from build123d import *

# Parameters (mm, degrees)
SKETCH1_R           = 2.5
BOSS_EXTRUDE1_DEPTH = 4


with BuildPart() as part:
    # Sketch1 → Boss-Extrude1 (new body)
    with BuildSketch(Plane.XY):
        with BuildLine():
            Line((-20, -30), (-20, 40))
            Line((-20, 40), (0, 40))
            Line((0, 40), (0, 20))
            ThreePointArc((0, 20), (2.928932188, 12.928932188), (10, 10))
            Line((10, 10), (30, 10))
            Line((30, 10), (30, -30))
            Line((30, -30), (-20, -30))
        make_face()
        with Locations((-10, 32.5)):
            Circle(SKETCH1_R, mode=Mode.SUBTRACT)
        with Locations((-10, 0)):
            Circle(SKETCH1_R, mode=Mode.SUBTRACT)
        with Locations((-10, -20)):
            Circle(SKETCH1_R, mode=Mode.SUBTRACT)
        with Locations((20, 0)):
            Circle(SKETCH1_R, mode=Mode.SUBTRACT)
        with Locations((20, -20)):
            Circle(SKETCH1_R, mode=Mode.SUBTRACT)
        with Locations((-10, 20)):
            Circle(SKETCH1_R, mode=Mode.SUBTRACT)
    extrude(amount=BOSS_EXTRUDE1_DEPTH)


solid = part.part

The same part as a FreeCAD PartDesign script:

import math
import FreeCAD as App
import Part
import Sketcher
from FreeCAD import Vector

doc = App.newDocument("Part")
body = doc.addObject("PartDesign::Body", "Body")

sketch1 = body.newObject("Sketcher::SketchObject", "Sketch")
sketch1.AttachmentSupport = (doc.getObject("XY_Plane"), [""])
sketch1.MapMode = "FlatFace"
sketch1.addGeometry([
    Part.LineSegment(Vector(-20, 40, 0), Vector(-20, -30, 0)),
    Part.LineSegment(Vector(-20, -30, 0), Vector(30, -30, 0)),
    Part.LineSegment(Vector(30, -30, 0), Vector(30, 10, 0)),
    Part.LineSegment(Vector(30, 10, 0), Vector(10, 10, 0)),
    Part.ArcOfCircle(Part.Circle(Vector(10, 20, 0), Vector(0, 0, 1), 10), math.radians(180), math.radians(270)),
    Part.LineSegment(Vector(0, 20, 0), Vector(0, 40, 0)),
    Part.LineSegment(Vector(0, 40, 0), Vector(-20, 40, 0)),
    Part.Circle(Vector(20, -20, 0), Vector(0, 0, 1), 2.5),
    Part.Circle(Vector(20, 0, 0), Vector(0, 0, 1), 2.5),
    Part.Circle(Vector(-10, -20, 0), Vector(0, 0, 1), 2.5),
    Part.Circle(Vector(-10, 0, 0), Vector(0, 0, 1), 2.5),
    Part.Circle(Vector(-10, 20, 0), Vector(0, 0, 1), 2.5),
    Part.Circle(Vector(-10, 32.5, 0), Vector(0, 0, 1), 2.5),
], False)
sketch1.addConstraint([
    Sketcher.Constraint("Coincident", 0, 2, 1, 1),
    Sketcher.Constraint("Coincident", 1, 2, 2, 1),
    Sketcher.Constraint("Coincident", 2, 2, 3, 1),
    Sketcher.Constraint("Tangent", 3, 2, 4, 2),
    Sketcher.Constraint("Tangent", 4, 1, 5, 1),
    Sketcher.Constraint("Coincident", 5, 2, 6, 1),
    Sketcher.Constraint("Coincident", 6, 2, 0, 1),
    Sketcher.Constraint("Vertical", 0),
    Sketcher.Constraint("Horizontal", 1),
    Sketcher.Constraint("Vertical", 2),
    Sketcher.Constraint("Horizontal", 3),
    Sketcher.Constraint("Vertical", 5),
    Sketcher.Constraint("Horizontal", 6),
    Sketcher.Constraint("Equal", 7, 8),
    Sketcher.Constraint("Equal", 8, 9),
    Sketcher.Constraint("Equal", 9, 10),
    Sketcher.Constraint("Equal", 10, 11),
    Sketcher.Constraint("Equal", 11, 12),
    Sketcher.Constraint("Symmetric", 4, 3, 9, 3, -1, 1),
    Sketcher.Constraint("Symmetric", 4, 3, 11, 3, -2),
    Sketcher.Constraint("PointOnObject", 8, 3, -1),
    Sketcher.Constraint("PointOnObject", 10, 3, -1),
    Sketcher.Constraint("PointOnObject", 4, 1, -2),
    Sketcher.Constraint("Horizontal", 7, 3, 9, 3),
    Sketcher.Constraint("Vertical", 7, 3, 8, 3),
    Sketcher.Constraint("Vertical", 9, 3, 10, 3),
    Sketcher.Constraint("Vertical", 11, 3, 12, 3),
    Sketcher.Constraint("Equal", 3, 6),
    Sketcher.Constraint("Equal", 6, 5),
    Sketcher.Constraint("Diameter", 7, 5.0),
    Sketcher.Constraint("Radius", 4, 10.0),
    Sketcher.Constraint("DistanceX", 1, 1, 1, 2, 50.0),
    Sketcher.Constraint("DistanceY", 0, 2, 0, 1, 70.0),
    Sketcher.Constraint("DistanceY", -1, 1, 4, 3, 20.0),
    Sketcher.Constraint("DistanceX", -1, 1, 7, 3, 20.0),
    Sketcher.Constraint("DistanceY", -1, 1, 12, 3, 32.5),
])
pad1 = body.newObject("PartDesign::Pad", "Pad")
pad1.Profile = sketch1
pad1.Length = 4

doc.recompute()
